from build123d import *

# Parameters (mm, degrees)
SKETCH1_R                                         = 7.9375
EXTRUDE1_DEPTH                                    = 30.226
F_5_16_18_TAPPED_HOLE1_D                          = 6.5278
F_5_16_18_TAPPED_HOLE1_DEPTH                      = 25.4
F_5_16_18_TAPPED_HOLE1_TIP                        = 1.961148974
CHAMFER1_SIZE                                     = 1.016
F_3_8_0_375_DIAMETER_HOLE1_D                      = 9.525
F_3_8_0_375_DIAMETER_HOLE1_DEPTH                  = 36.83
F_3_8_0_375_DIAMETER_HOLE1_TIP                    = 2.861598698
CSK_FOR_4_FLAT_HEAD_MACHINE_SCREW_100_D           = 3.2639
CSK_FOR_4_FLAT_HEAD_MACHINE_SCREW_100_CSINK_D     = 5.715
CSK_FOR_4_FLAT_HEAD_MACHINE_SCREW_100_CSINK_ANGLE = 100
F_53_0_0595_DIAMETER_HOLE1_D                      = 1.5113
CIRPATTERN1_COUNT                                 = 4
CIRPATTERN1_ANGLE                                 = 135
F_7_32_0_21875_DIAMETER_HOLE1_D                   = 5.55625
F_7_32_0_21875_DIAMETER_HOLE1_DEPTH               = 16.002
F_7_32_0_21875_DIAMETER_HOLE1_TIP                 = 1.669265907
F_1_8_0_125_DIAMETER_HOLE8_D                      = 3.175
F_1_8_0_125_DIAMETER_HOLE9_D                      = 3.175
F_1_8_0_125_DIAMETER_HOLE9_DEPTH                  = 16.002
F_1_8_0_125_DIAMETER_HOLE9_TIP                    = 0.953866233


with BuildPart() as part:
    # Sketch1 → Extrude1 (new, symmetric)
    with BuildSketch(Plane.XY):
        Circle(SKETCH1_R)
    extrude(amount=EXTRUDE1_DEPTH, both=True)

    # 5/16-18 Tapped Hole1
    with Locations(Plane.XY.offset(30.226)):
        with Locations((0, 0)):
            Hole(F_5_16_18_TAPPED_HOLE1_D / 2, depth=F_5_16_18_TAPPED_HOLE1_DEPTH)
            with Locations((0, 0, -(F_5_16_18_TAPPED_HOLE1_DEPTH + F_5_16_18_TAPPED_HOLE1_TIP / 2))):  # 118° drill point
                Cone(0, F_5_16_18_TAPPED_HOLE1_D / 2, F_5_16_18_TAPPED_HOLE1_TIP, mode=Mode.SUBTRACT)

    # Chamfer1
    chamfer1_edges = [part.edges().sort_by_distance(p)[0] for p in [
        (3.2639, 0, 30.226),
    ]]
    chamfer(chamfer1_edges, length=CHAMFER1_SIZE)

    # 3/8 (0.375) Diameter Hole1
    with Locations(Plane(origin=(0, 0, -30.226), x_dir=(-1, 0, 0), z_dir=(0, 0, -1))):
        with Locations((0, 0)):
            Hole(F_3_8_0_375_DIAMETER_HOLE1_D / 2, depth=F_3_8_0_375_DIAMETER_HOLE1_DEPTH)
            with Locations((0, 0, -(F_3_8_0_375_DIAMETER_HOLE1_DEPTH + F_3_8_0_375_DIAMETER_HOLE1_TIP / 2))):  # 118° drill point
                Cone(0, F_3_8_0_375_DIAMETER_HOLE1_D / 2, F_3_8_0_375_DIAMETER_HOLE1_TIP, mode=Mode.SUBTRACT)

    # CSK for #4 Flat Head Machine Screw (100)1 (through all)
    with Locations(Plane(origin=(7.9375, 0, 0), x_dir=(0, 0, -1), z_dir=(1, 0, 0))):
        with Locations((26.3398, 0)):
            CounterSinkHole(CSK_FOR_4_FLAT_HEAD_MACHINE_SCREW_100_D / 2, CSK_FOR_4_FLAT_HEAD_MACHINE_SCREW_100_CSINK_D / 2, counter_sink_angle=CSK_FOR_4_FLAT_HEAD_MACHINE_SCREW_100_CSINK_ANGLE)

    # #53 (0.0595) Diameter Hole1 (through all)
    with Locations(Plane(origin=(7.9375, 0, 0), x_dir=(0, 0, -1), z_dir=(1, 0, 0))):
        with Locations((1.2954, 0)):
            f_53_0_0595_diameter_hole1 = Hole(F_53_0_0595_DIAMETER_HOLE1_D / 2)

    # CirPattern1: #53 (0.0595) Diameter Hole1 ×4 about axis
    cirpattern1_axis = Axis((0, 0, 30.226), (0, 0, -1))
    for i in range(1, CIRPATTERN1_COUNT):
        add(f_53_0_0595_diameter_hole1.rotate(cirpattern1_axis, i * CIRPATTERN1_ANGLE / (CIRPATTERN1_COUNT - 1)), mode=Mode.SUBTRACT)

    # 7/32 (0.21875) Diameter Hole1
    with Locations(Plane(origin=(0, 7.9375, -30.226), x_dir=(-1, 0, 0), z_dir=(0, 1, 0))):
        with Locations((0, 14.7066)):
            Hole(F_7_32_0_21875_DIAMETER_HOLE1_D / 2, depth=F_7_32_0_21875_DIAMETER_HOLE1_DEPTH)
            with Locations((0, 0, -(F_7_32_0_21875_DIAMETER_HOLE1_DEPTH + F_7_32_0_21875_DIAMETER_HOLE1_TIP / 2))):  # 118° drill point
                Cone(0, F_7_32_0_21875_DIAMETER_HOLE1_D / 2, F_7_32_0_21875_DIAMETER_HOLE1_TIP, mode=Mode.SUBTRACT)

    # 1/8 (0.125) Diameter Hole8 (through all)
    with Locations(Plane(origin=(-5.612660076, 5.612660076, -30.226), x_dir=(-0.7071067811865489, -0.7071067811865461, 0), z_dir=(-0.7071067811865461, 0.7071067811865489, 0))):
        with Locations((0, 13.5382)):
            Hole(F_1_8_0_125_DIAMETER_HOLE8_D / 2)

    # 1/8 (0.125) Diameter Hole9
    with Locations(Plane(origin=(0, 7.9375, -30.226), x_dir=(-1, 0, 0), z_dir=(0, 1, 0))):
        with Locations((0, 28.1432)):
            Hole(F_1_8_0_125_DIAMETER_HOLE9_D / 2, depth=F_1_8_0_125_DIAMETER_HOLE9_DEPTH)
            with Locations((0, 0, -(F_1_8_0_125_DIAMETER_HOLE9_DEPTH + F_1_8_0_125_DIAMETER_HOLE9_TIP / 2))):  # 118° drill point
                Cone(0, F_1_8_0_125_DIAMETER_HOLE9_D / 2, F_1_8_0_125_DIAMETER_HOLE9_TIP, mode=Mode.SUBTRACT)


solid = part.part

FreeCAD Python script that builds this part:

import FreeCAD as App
import Part
import Sketcher

V = App.Vector
Q = App.Units.Quantity


def edges_at(feature, points):
    """Names of the edges that pass closest to the given points."""
    edges = feature.Shape.Edges
    near = lambda p: min(range(len(edges)), key=lambda i: edges[i].distToShape(Part.Vertex(*p))[0])
    return sorted({f"Edge{near(p) + 1}" for p in points})

doc = App.newDocument("Part")
body = doc.addObject("PartDesign::Body", "Body")

# Sketch on XY plane
sketch1 = doc.addObject("Sketcher::SketchObject", "Sketch")
body.addObject(sketch1)
sketch1.AttachmentSupport = (doc.XY_Plane, [""])
sketch1.MapMode = "FlatFace"
sketch1.addGeometry(Part.Circle(V(0, 0, 0), V(0, 0, 1), 8), False)
sketch1.addConstraint(Sketcher.Constraint("Coincident", 0, 3, -1, 1))
sketch1.addConstraint(Sketcher.Constraint("Diameter", 0, Q("0.625 in")))
pad1 = doc.addObject("PartDesign::Pad", "Pad")
body.addObject(pad1)
pad1.Profile = sketch1
pad1.Length = Q("2.38 in")
pad1.Midplane = True

# Sketch on XY plane
sketch2 = doc.addObject("Sketcher::SketchObject", "Sketch001")
body.addObject(sketch2)
sketch2.AttachmentSupport = (doc.XY_Plane, [""])
sketch2.MapMode = "FlatFace"
sketch2.AttachmentOffset = App.Placement(V(0, 0, 1.19 * 25.4), App.Rotation())
sketch2.addGeometry(Part.Circle(V(0, 0, 0), V(0, 0, 1), 3.3), False)
sketch2.addConstraint(Sketcher.Constraint("Coincident", 0, 3, -1, 1))
sketch2.addConstraint(Sketcher.Constraint("Diameter", 0, Q("0.257 in")))
doc.recompute()
hole = doc.addObject("PartDesign::Hole", "Hole")
body.addObject(hole)
hole.Profile = sketch2
hole.ThreadType = "None"
hole.Diameter = Q("0.257 in")
hole.DepthType = "Dimension"
hole.Depth = Q("1 in")
hole.DrillPoint = "Angled"
hole.DrillPointAngle = 118
doc.recompute()

chamfer = doc.addObject("PartDesign::Chamfer", "Chamfer")
body.addObject(chamfer)
chamfer.Base = (hole, edges_at(hole, [(3.264, 0, 30.226)]))
chamfer.Size = Q("0.04 in")

# Sketch on XY plane
sketch3 = doc.addObject("Sketcher::SketchObject", "Sketch002")
body.addObject(sketch3)
sketch3.AttachmentSupport = (doc.XY_Plane, [""])
sketch3.MapMode = "FlatFace"
sketch3.AttachmentOffset = App.Placement(V(0, 0, -1.19 * 25.4), App.Rotation())
sketch3.addGeometry(Part.Circle(V(0, 0, 0), V(0, 0, 1), 4.8), False)
sketch3.addConstraint(Sketcher.Constraint("Coincident", 0, 3, -1, 1))
sketch3.addConstraint(Sketcher.Constraint("Diameter", 0, Q("0.375 in")))
doc.recompute()
hole2 = doc.addObject("PartDesign::Hole", "Hole001")
body.addObject(hole2)
hole2.Profile = sketch3
hole2.ThreadType = "None"
hole2.Diameter = Q("0.375 in")
hole2.DepthType = "Dimension"
hole2.Depth = Q("1.45 in")
hole2.DrillPoint = "Angled"
hole2.DrillPointAngle = 118
hole2.Reversed = True

# Sketch on YZ plane
sketch4 = doc.addObject("Sketcher::SketchObject", "Sketch003")
body.addObject(sketch4)
sketch4.AttachmentSupport = (doc.YZ_Plane, [""])
sketch4.MapMode = "FlatFace"
sketch4.AttachmentOffset = App.Placement(V(0, 0, 0.3125 * 25.4), App.Rotation())
sketch4.addGeometry(Part.Circle(V(0, -26.3, 0), V(0, 0, 1), 1.6), False)
sketch4.addConstraint(Sketcher.Constraint("PointOnObject", 0, 3, -2))
sketch4.addConstraint(Sketcher.Constraint("Diameter", 0, Q("0.1285 in")))
sketch4.addConstraint(Sketcher.Constraint("DistanceY", 0, 3, -1, 1, Q("1.037 in")))
doc.recompute()
hole3 = doc.addObject("PartDesign::Hole", "Hole002")
body.addObject(hole3)
hole3.Profile = sketch4
hole3.ThreadType = "None"
hole3.Diameter = Q("0.1285 in")
hole3.DepthType = "ThroughAll"
hole3.HoleCutType = "Countersink"
hole3.HoleCutDiameter = Q("0.225 in")
hole3.HoleCutCountersinkAngle = 100

# Sketch on YZ plane
sketch5 = doc.addObject("Sketcher::SketchObject", "Sketch004")
body.addObject(sketch5)
sketch5.AttachmentSupport = (doc.YZ_Plane, [""])
sketch5.MapMode = "FlatFace"
sketch5.AttachmentOffset = App.Placement(V(0, 0, 0.3125 * 25.4), App.Rotation())
sketch5.addGeometry(Part.Circle(V(0, -1.3, 0), V(0, 0, 1), 0.8), False)
sketch5.addConstraint(Sketcher.Constraint("PointOnObject", 0, 3, -2))
sketch5.addConstraint(Sketcher.Constraint("Diameter", 0, Q("0.0595 in")))
sketch5.addConstraint(Sketcher.Constraint("DistanceY", 0, 3, -1, 1, Q("0.051 in")))
doc.recompute()
hole4 = doc.addObject("PartDesign::Hole", "Hole003")
body.addObject(hole4)
hole4.Profile = sketch5
hole4.ThreadType = "None"
hole4.Diameter = Q("0.0595 in")
hole4.DepthType = "ThroughAll"
doc.recompute()

polarpattern = doc.addObject("PartDesign::PolarPattern", "PolarPattern")
body.addObject(polarpattern)
polarpattern.Originals = [hole4]
polarpattern.Axis = (doc.Z_Axis, [""])
polarpattern.Angle = 135
polarpattern.Occurrences = 4
polarpattern.Reversed = True
body.Tip = polarpattern

# Sketch on XZ plane
sketch6 = doc.addObject("Sketcher::SketchObject", "Sketch005")
body.addObject(sketch6)
sketch6.AttachmentSupport = (doc.XZ_Plane, [""])
sketch6.MapMode = "FlatFace"
sketch6.AttachmentOffset = App.Placement(V(0, 0, -0.3125 * 25.4), App.Rotation())
sketch6.addGeometry(Part.Circle(V(0, -15.5, 0), V(0, 0, 1), 2.8), False)
sketch6.addConstraint(Sketcher.Constraint("PointOnObject", 0, 3, -2))
sketch6.addConstraint(Sketcher.Constraint("Diameter", 0, Q("0.21875 in")))
sketch6.addConstraint(Sketcher.Constraint("DistanceY", 0, 3, -1, 1, Q("0.611 in")))
doc.recompute()
hole5 = doc.addObject("PartDesign::Hole", "Hole004")
body.addObject(hole5)
hole5.Profile = sketch6
hole5.ThreadType = "None"
hole5.Diameter = Q("0.21875 in")
hole5.DepthType = "Dimension"
hole5.Depth = Q("0.63 in")
hole5.DrillPoint = "Angled"
hole5.DrillPointAngle = 118
hole5.Reversed = True

# Sketch on an angled plane
sketch7 = doc.addObject("Sketcher::SketchObject", "Sketch006")
body.addObject(sketch7)
sketch7.Placement = App.Placement(V(-5.61266, 5.61266, 0), App.Rotation(V(-0.707106781, -0.707106781, 0), V(0, 0, 0.999999999), V(-0.707106781, 0.707106781, 0), "ZXY"))
sketch7.addGeometry(Part.Circle(V(0, -16.7, 0), V(0, 0, 1), 1.6), False)
sketch7.addConstraint(Sketcher.Constraint("PointOnObject", 0, 3, -2))
sketch7.addConstraint(Sketcher.Constraint("Diameter", 0, Q("0.125 in")))
sketch7.addConstraint(Sketcher.Constraint("DistanceY", 0, 3, -1, 1, Q("0.657 in")))
doc.recompute()
hole6 = doc.addObject("PartDesign::Hole", "Hole005")
body.addObject(hole6)
hole6.Profile = sketch7
hole6.ThreadType = "None"
hole6.Diameter = Q("0.125 in")
hole6.DepthType = "ThroughAll"

# Sketch on XZ plane
sketch8 = doc.addObject("Sketcher::SketchObject", "Sketch007")
body.addObject(sketch8)
sketch8.AttachmentSupport = (doc.XZ_Plane, [""])
sketch8.MapMode = "FlatFace"
sketch8.AttachmentOffset = App.Placement(V(0, 0, -0.3125 * 25.4), App.Rotation())
sketch8.addGeometry(Part.Circle(V(0, -2.1, 0), V(0, 0, 1), 1.6), False)
sketch8.addConstraint(Sketcher.Constraint("PointOnObject", 0, 3, -2))
sketch8.addConstraint(Sketcher.Constraint("Diameter", 0, Q("0.125 in")))
sketch8.addConstraint(Sketcher.Constraint("DistanceY", 0, 3, -1, 1, Q("0.082 in")))
doc.recompute()
hole7 = doc.addObject("PartDesign::Hole", "Hole006")
body.addObject(hole7)
hole7.Profile = sketch8
hole7.ThreadType = "None"
hole7.Diameter = Q("0.125 in")
hole7.DepthType = "Dimension"
hole7.Depth = Q("0.63 in")
hole7.DrillPoint = "Angled"
hole7.DrillPointAngle = 118
hole7.Reversed = True

doc.recompute()
